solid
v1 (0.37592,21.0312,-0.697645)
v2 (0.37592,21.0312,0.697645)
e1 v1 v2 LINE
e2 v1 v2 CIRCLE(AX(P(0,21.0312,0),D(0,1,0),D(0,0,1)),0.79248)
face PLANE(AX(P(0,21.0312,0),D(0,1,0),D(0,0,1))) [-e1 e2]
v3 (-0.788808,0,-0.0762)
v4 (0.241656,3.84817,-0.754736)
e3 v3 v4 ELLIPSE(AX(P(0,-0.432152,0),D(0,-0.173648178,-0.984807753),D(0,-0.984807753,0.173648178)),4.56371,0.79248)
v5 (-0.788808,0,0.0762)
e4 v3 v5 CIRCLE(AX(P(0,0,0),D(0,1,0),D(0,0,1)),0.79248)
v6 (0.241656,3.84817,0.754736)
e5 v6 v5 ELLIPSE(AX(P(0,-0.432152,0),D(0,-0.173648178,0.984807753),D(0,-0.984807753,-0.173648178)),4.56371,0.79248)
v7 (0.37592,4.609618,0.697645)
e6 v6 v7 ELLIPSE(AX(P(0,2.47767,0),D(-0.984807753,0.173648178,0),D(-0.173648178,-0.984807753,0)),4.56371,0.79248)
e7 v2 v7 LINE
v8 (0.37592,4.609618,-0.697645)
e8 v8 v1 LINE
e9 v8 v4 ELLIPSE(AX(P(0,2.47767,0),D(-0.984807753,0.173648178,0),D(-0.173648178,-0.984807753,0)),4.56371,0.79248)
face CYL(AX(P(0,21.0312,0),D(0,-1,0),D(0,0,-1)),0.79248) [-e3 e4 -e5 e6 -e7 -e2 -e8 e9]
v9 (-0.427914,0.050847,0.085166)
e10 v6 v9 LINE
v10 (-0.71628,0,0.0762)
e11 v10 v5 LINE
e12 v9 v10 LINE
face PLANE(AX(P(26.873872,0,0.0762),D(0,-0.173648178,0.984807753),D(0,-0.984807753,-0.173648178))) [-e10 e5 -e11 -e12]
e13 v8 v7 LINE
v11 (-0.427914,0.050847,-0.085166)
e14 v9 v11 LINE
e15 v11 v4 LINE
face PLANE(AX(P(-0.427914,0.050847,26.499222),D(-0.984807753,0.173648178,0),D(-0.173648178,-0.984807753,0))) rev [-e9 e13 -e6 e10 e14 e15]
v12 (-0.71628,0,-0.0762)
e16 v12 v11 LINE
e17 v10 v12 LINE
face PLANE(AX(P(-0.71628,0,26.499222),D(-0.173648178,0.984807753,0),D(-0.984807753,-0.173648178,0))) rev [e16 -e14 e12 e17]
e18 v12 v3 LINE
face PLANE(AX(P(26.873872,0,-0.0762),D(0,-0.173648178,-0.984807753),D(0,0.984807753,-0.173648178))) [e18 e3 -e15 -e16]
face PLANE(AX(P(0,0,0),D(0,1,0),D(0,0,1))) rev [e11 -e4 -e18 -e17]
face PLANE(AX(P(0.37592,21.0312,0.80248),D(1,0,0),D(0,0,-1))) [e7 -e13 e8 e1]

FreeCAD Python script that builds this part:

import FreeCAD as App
import Part
import Sketcher
from FreeCAD import Vector
Q = App.Units.Quantity

doc = App.newDocument("Part")
body = doc.addObject("PartDesign::Body", "Body")

# Sketch on XZ plane
sketch1 = body.newObject("Sketcher::SketchObject", "Sketch")
sketch1.AttachmentSupport = (doc.getObject("XZ_Plane"), [""])
sketch1.MapMode = "FlatFace"
sketch1.addGeometry(Part.Circle(Vector(0, 0, 0), Vector(0, 0, 1), 0.79248), False)
sketch1.addConstraint([
    Sketcher.Constraint("Coincident", 0, 3, -1, 1),
    Sketcher.Constraint("Diameter", 0, Q("0.0624 in")),
])
pad1 = body.newObject("PartDesign::Pad", "Pad")
pad1.Profile = sketch1
pad1.Length = Q("0.828 in")
pad1.Reversed = True

# Sketch on XZ plane
sketch2 = body.newObject("Sketcher::SketchObject", "Sketch001")
sketch2.AttachmentSupport = (doc.getObject("XZ_Plane"), [""])
sketch2.MapMode = "FlatFace"
sketch2.addGeometry([
    Part.LineSegment(Vector(0.37592, -0.80248, 0), Vector(0.37592, 0.80248, 0)),
    Part.LineSegment(Vector(0.37592, 0.80248, 0), Vector(1.98088, 0.80248, 0)),
    Part.LineSegment(Vector(1.98088, 0.80248, 0), Vector(1.98088, -0.80248, 0)),
    Part.LineSegment(Vector(1.98088, -0.80248, 0), Vector(0.37592, -0.80248, 0)),
], False)
sketch2.addConstraint([
    Sketcher.Constraint("Coincident", 0, 2, 1, 1),
    Sketcher.Constraint("Coincident", 1, 2, 2, 1),
    Sketcher.Constraint("Coincident", 2, 2, 3, 1),
    Sketcher.Constraint("Coincident", 3, 2, 0, 1),
    Sketcher.Constraint("Vertical", 0),
    Sketcher.Constraint("Horizontal", 1),
    Sketcher.Constraint("Vertical", 2),
    Sketcher.Constraint("Horizontal", 3),
    Sketcher.Constraint("Equal", 3, 0),
    Sketcher.Constraint("DistanceX", -1, 1, 0, 2, Q("0.0148 in")),
    Sketcher.Constraint("DistanceX", 1, 1, 1, 2, Q("1.60496 mm")),
    Sketcher.Constraint("DistanceY", -1, 1, 0, 2, Q("0.80248 mm")),
])
pocket1 = body.newObject("PartDesign::Pocket", "Pocket")
pocket1.Profile = sketch2
pocket1.Type = "ThroughAll"

# Sketch on YZ plane
sketch3 = body.newObject("Sketcher::SketchObject", "Sketch002")
sketch3.AttachmentSupport = (doc.getObject("YZ_Plane"), [""])
sketch3.MapMode = "FlatFace"
sketch3.addGeometry([
    Part.LineSegment(Vector(21.0312, 3.784568, 0), Vector(73.272283, 12.99608, 0)),  # 0
    Part.LineSegment(Vector(73.272283, 12.99608, 0), Vector(-32.821688, 12.99608, 0)),  # 1
    Part.LineSegment(Vector(-32.821688, 12.99608, 0), Vector(-32.821688, -12.99608, 0)),  # 2
    Part.LineSegment(Vector(-32.821688, -12.99608, 0), Vector(73.272283, -12.99608, 0)),  # 3
    Part.LineSegment(Vector(73.272283, -12.99608, 0), Vector(21.0312, -3.784568, 0)),  # 4
    Part.LineSegment(Vector(21.0312, -3.784568, 0), Vector(0, -0.0762, 0)),  # 5
    Part.LineSegment(Vector(0, -0.0762, 0), Vector(0, 0.0762, 0)),  # 6
    Part.LineSegment(Vector(0, 0.0762, 0), Vector(21.0312, 3.784568, 0)),  # 7
], False)
sketch3.addConstraint([
    Sketcher.Constraint("Coincident", 0, 2, 1, 1),
    Sketcher.Constraint("Coincident", 1, 2, 2, 1),
    Sketcher.Constraint("Coincident", 2, 2, 3, 1),
    Sketcher.Constraint("Coincident", 3, 2, 4, 1),
    Sketcher.Constraint("Coincident", 4, 2, 5, 1),
    Sketcher.Constraint("Coincident", 5, 2, 6, 1),
    Sketcher.Constraint("Coincident", 6, 2, 7, 1),
    Sketcher.Constraint("Coincident", 7, 2, 0, 1),
    Sketcher.Constraint("Horizontal", 1),
    Sketcher.Constraint("Vertical", 2),
    Sketcher.Constraint("Horizontal", 3),
    Sketcher.Constraint("Vertical", 6),
    Sketcher.Constraint("Symmetric", 5, 2, 6, 2, -1, 1),
    Sketcher.Constraint("Symmetric", 0, 2, 3, 2, -1),
    Sketcher.Constraint("Symmetric", 4, 2, 7, 2, -1),
    Sketcher.Constraint("Parallel", 4, 5),
    Sketcher.Constraint("Angle", 0, Q("10 deg")),
    Sketcher.Constraint("DistanceY", 6, 1, 6, 2, Q("0.006 in")),
    Sketcher.Constraint("DistanceX", -1, 1, 4, 2, Q("0.828 in")),
    Sketcher.Constraint("DistanceX", 1, 2, 1, 1, Q("106.093971 mm")),
    Sketcher.Constraint("DistanceY", 2, 2, 2, 1, Q("25.992161 mm")),
])
pocket2 = body.newObject("PartDesign::Pocket", "Pocket001")
pocket2.Profile = sketch3
pocket2.Type = "ThroughAll"
pocket2.Midplane = True

# Sketch on XY plane
sketch4 = body.newObject("Sketcher::SketchObject", "Sketch003")
sketch4.AttachmentSupport = (doc.getObject("XY_Plane"), [""])
sketch4.MapMode = "FlatFace"
sketch4.addGeometry([
    Part.LineSegment(Vector(-0.71628, 0, 0), Vector(-53.632985, 0, 0)),  # 0
    Part.LineSegment(Vector(-53.632985, 0, 0), Vector(24.7492, -70.885181, 0)),  # 1
    Part.LineSegment(Vector(24.7492, -70.885181, 0), Vector(90.82933, 2.183758, 0)),  # 2
    Part.LineSegment(Vector(90.82933, 2.183758, 0), Vector(12.447145, 73.068939, 0)),  # 3
    Part.LineSegment(Vector(12.447145, 73.068939, 0), Vector(3.271488, 21.0312, 0)),  # 4
    Part.LineSegment(Vector(3.271488, 21.0312, 0), Vector(-0.427914, 0.050847, 0)),  # 5
    Part.LineSegment(Vector(-0.427914, 0.050847, 0), Vector(-0.71628, 0, 0)),  # 6
], False)
sketch4.addConstraint([
    Sketcher.Constraint("Coincident", 0, 2, 1, 1),
    Sketcher.Constraint("Coincident", 1, 2, 2, 1),
    Sketcher.Constraint("Coincident", 2, 2, 3, 1),
    Sketcher.Constraint("Coincident", 3, 2, 4, 1),
    Sketcher.Constraint("Coincident", 4, 2, 5, 1),
    Sketcher.Constraint("Coincident", 5, 2, 6, 1),
    Sketcher.Constraint("Coincident", 6, 2, 0, 1),
    Sketcher.Constraint("Horizontal", 0),
    Sketcher.Constraint("PointOnObject", 0, 2, -1),
    Sketcher.Constraint("Perpendicular", 1, 2),
    Sketcher.Constraint("Perpendicular", 2, 3),
    Sketcher.Constraint("Parallel", 4, 5),
    Sketcher.Constraint("Equal", 1, 3),
    Sketcher.Constraint("Angle", 4, Q("-100 deg")),
    Sketcher.Constraint("Angle", 6, Q("-170 deg")),
    Sketcher.Constraint("DistanceY", -1, 1, 4, 2, Q("0.828 in")),
    Sketcher.Constraint("DistanceX", 6, 2, -1, 1, Q("0.0282 in")),
    Sketcher.Constraint("DistanceX", -1, 1, 1, 2, Q("24.7492 mm")),
    Sketcher.Constraint("Distance", 1, Q("105.681009 mm")),
    Sketcher.Constraint("Distance", 5, Q("21.304009 mm")),
    Sketcher.Constraint("DistanceX", 0, 2, 0, 1, Q("52.916705 mm")),
])
pocket3 = body.newObject("PartDesign::Pocket", "Pocket002")
pocket3.Profile = sketch4
pocket3.Type = "ThroughAll"
pocket3.Midplane = True

doc.recompute()
